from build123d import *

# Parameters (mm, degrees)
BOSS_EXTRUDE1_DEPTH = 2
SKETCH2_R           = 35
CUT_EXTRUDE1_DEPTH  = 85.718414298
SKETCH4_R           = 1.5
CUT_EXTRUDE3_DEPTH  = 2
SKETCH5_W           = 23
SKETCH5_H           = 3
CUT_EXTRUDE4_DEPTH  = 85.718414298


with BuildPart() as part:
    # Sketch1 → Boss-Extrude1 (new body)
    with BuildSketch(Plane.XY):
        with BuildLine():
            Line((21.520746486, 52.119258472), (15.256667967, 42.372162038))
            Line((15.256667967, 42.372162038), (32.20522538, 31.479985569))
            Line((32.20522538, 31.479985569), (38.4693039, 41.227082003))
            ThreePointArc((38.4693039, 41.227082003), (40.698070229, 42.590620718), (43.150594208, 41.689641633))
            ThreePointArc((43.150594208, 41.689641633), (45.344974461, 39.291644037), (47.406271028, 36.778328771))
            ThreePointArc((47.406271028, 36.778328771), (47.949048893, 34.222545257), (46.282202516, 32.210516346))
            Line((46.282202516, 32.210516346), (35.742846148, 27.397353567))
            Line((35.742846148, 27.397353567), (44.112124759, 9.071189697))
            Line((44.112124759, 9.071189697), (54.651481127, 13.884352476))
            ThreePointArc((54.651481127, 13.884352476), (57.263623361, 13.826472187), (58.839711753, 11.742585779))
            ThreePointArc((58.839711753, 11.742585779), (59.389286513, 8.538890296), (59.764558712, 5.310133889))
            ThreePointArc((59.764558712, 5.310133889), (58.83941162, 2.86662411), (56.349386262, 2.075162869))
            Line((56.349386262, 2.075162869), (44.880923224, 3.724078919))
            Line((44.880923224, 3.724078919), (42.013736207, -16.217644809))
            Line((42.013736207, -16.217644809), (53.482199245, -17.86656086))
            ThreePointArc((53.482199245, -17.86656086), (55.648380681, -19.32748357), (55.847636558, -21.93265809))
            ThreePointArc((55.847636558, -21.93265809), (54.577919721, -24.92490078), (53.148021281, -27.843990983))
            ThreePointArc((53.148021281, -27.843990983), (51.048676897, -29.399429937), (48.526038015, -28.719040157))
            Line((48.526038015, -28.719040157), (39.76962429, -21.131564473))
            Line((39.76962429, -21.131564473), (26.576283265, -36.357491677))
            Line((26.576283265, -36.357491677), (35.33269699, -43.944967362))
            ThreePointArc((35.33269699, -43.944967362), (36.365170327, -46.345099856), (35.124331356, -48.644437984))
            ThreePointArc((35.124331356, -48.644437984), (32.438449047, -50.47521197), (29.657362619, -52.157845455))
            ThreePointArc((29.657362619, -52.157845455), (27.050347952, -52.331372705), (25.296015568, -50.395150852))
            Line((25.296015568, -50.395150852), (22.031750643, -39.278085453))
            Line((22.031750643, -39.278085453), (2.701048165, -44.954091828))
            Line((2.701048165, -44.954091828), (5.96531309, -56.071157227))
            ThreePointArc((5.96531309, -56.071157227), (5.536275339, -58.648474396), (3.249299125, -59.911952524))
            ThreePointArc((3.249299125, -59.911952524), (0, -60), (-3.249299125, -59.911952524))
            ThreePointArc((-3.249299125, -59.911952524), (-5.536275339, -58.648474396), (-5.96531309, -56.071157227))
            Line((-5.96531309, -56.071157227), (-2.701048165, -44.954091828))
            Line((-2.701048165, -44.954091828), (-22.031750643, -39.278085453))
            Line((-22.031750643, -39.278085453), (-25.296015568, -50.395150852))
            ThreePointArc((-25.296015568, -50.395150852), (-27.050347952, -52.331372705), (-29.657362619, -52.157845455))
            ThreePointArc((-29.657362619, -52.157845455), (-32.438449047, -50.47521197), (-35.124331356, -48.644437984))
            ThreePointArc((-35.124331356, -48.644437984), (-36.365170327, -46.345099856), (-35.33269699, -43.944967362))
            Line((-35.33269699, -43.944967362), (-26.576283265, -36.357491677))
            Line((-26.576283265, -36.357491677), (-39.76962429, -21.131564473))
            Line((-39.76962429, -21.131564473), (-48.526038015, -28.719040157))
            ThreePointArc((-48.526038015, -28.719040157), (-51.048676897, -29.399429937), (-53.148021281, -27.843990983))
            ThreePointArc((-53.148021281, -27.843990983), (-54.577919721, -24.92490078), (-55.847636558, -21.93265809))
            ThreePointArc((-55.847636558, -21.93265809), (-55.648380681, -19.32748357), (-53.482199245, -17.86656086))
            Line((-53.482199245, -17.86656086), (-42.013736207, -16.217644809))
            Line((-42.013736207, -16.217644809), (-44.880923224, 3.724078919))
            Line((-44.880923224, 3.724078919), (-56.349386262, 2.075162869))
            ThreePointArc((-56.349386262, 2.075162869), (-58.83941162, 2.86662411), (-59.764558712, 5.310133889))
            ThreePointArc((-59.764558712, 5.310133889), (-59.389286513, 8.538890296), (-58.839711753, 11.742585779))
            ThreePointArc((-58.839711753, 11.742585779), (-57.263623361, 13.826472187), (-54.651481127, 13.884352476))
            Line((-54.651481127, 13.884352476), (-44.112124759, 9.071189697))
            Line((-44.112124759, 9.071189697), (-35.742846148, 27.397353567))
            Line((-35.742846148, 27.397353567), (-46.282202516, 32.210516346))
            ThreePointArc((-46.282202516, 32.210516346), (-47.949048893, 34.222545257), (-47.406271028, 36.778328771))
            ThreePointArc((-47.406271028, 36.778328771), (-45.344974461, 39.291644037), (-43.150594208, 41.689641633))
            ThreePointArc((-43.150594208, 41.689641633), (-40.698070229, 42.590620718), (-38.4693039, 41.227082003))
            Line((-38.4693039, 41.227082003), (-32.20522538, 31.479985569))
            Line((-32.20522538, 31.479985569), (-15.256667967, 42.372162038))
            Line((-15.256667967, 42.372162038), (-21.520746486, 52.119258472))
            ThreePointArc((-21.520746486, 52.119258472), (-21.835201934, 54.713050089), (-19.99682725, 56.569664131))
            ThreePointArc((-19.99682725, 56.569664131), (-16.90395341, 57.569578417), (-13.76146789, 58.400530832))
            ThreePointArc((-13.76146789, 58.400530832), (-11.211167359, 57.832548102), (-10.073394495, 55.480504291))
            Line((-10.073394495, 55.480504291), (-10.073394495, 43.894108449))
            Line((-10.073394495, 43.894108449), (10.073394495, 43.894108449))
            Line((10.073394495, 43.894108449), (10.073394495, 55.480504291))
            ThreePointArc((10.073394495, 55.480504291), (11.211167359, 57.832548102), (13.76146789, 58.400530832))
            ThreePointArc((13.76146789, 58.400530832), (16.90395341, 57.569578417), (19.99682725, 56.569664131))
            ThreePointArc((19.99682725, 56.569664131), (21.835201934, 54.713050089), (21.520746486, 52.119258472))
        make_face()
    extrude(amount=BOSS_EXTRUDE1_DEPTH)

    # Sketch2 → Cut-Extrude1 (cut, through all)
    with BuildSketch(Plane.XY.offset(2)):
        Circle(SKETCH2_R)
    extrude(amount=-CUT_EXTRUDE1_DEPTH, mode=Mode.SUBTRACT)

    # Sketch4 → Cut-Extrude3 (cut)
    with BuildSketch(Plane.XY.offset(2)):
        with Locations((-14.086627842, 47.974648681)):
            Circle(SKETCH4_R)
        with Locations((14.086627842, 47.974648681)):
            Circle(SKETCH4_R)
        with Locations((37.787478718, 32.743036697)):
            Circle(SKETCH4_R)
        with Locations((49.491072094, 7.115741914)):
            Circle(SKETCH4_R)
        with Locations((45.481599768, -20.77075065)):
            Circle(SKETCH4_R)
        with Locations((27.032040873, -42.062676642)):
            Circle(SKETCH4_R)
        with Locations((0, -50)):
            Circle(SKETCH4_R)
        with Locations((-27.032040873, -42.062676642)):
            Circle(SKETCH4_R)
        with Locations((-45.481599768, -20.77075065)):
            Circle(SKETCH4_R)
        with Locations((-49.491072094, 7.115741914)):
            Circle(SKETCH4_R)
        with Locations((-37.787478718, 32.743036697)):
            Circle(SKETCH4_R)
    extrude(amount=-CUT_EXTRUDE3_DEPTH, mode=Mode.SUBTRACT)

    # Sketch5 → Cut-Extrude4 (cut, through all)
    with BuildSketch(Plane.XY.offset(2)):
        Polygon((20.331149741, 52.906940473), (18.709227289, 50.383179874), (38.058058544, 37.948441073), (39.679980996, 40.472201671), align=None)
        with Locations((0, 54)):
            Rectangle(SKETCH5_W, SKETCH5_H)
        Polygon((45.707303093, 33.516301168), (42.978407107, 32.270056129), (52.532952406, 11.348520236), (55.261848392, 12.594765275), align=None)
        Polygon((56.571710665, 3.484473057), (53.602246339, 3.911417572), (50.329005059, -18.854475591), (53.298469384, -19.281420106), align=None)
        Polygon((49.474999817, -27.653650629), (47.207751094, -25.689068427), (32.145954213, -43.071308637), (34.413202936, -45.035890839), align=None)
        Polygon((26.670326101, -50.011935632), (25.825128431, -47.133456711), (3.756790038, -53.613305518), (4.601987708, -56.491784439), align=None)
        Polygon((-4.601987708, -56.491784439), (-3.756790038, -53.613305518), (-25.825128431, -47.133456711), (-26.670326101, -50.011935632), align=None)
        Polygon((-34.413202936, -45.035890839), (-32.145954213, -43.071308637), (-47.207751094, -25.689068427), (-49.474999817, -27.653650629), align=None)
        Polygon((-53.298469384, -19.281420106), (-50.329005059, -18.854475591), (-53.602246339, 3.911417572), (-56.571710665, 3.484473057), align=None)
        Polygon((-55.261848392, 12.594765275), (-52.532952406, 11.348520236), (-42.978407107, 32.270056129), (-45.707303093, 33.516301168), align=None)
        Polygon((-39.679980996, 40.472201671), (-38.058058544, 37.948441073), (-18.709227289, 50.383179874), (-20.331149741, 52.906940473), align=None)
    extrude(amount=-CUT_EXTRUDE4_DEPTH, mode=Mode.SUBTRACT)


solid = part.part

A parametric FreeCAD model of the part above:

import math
import FreeCAD as App
import Part
import Sketcher

doc = App.newDocument("Part")
params = doc.addObject("Spreadsheet::Sheet", "Params")
for row, (alias, value) in enumerate([
    ("sketch1_radius", "3 mm"),
    ("sketch1_radius2", "60 mm"),
    ("pad1_length", "2 mm"),
    ("sketch2_diameter", "70 mm"),
    ("sketch3_diameter", "3 mm"),
    ("pocket2_length", "2 mm"),
    ("sketch4_width", "23 mm"),
    ("sketch4_height", "3 mm"),
    ("sketch4_length", "3 mm"),
    ("sketch4_length2", "23 mm"),
], start=1):
    params.set(f"A{row}", alias)
    params.set(f"B{row}", "=" + value)
    params.setAlias(f"B{row}", alias)

body = doc.addObject("PartDesign::Body", "Body")

# Sketch on XY plane
sketch1 = doc.addObject("Sketcher::SketchObject", "Sketch")
body.addObject(sketch1)
sketch1.AttachmentSupport = (doc.XY_Plane, [""])
sketch1.MapMode = "FlatFace"
sketch1.addGeometry([
    Part.LineSegment(App.Vector(15.3, 42.4, 0), App.Vector(21.5, 52.1, 0)),  # 0
    Part.ArcOfCircle(Part.Circle(App.Vector(19, 53.7, 0), App.Vector(0, 0, 1), 3), math.radians(-33), math.radians(71)),  # 1
    Part.ArcOfCircle(Part.Circle(App.Vector(0, 0, 0), App.Vector(0, 0, 1), 60), math.radians(70.53), math.radians(76.74)),  # 2
    Part.ArcOfCircle(Part.Circle(App.Vector(13.1, 55.5, 0), App.Vector(0, 0, 1), 3), math.radians(77), math.radians(180)),  # 3
    Part.LineSegment(App.Vector(10.1, 55.5, 0), App.Vector(10.1, 43.9, 0)),  # 4
    Part.LineSegment(App.Vector(10.1, 43.9, 0), App.Vector(-10.1, 43.9, 0)),  # 5
    Part.LineSegment(App.Vector(-10.1, 43.9, 0), App.Vector(-10.1, 55.5, 0)),  # 6
    Part.ArcOfCircle(Part.Circle(App.Vector(-13.1, 55.5, 0), App.Vector(0, 0, 1), 3), math.radians(0), math.radians(103)),  # 7
    Part.ArcOfCircle(Part.Circle(App.Vector(0, 0, 0), App.Vector(0, 0, 1), 60), math.radians(103.26), math.radians(109.47)),  # 8
    Part.ArcOfCircle(Part.Circle(App.Vector(-19, 53.7, 0), App.Vector(0, 0, 1), 3), math.radians(109), math.radians(213)),  # 9
    Part.LineSegment(App.Vector(-21.5, 52.1, 0), App.Vector(-15.3, 42.4, 0)),  # 10
    Part.LineSegment(App.Vector(-15.3, 42.4, 0), App.Vector(-32.2, 31.5, 0)),  # 11
    Part.LineSegment(App.Vector(-32.2, 31.5, 0), App.Vector(-38.5, 41.2, 0)),  # 12
    Part.ArcOfCircle(Part.Circle(App.Vector(-41, 39.6, 0), App.Vector(0, 0, 1), 3), math.radians(33), math.radians(136)),  # 13
    Part.ArcOfCircle(Part.Circle(App.Vector(0, 0, 0), App.Vector(0, 0, 1), 60), math.radians(135.99), math.radians(142.2)),  # 14
    Part.ArcOfCircle(Part.Circle(App.Vector(-45, 34.9, 0), App.Vector(0, 0, 1), 3), math.radians(142), math.radians(245)),  # 15
    Part.LineSegment(App.Vector(-46.3, 32.2, 0), App.Vector(-35.7, 27.4, 0)),  # 16
    Part.LineSegment(App.Vector(-35.7, 27.4, 0), App.Vector(-44.1, 9.1, 0)),  # 17
    Part.LineSegment(App.Vector(-44.1, 9.1, 0), App.Vector(-54.7, 13.9, 0)),  # 18
    Part.ArcOfCircle(Part.Circle(App.Vector(-55.9, 11.2, 0), App.Vector(0, 0, 1), 3), math.radians(65), math.radians(169)),  # 19
    Part.ArcOfCircle(Part.Circle(App.Vector(0, 0, 0), App.Vector(0, 0, 1), 60), math.radians(168.71), math.radians(174.92)),  # 20
    Part.ArcOfCircle(Part.Circle(App.Vector(-56.8, 5, 0), App.Vector(0, 0, 1), 3), math.radians(175), math.radians(278)),  # 21
    Part.LineSegment(App.Vector(-56.3, 2.1, 0), App.Vector(-44.9, 3.7, 0)),  # 22
    Part.LineSegment(App.Vector(-44.9, 3.7, 0), App.Vector(-42, -16.2, 0)),  # 23
    Part.LineSegment(App.Vector(-42, -16.2, 0), App.Vector(-53.5, -17.9, 0)),  # 24
    Part.ArcOfCircle(Part.Circle(App.Vector(-53.1, -20.8, 0), App.Vector(0, 0, 1), 3), math.radians(98), math.radians(201)),  # 25
    Part.ArcOfCircle(Part.Circle(App.Vector(0, 0, 0), App.Vector(0, 0, 1), 60), math.radians(-158.56), math.radians(-152.35)),  # 26
    Part.ArcOfCircle(Part.Circle(App.Vector(-50.5, -26.5, 0), App.Vector(0, 0, 1), 3), math.radians(-152), math.radians(-49)),  # 27
    Part.LineSegment(App.Vector(-48.5, -28.7, 0), App.Vector(-39.8, -21.1, 0)),  # 28
    Part.LineSegment(App.Vector(-39.8, -21.1, 0), App.Vector(-26.6, -36.4, 0)),  # 29
    Part.LineSegment(App.Vector(-26.6, -36.4, 0), App.Vector(-35.3, -43.9, 0)),  # 30
    Part.ArcOfCircle(Part.Circle(App.Vector(-33.4, -46.2, 0), App.Vector(0, 0, 1), 3), math.radians(131), math.radians(234)),  # 31
    Part.ArcOfCircle(Part.Circle(App.Vector(0, 0, 0), App.Vector(0, 0, 1), 60), math.radians(-125.83), math.radians(-119.62)),  # 32
    Part.ArcOfCircle(Part.Circle(App.Vector(-28.2, -49.5, 0), App.Vector(0, 0, 1), 3), math.radians(-120), math.radians(-16)),  # 33
    Part.LineSegment(App.Vector(-25.3, -50.4, 0), App.Vector(-22, -39.3, 0)),  # 34
    Part.LineSegment(App.Vector(-22, -39.3, 0), App.Vector(-2.7, -45, 0)),  # 35
    Part.LineSegment(App.Vector(-2.7, -45, 0), App.Vector(-6, -56.1, 0)),  # 36
    Part.ArcOfCircle(Part.Circle(App.Vector(-3.1, -56.9, 0), App.Vector(0, 0, 1), 3), math.radians(164), math.radians(267)),  # 37
    Part.ArcOfCircle(Part.Circle(App.Vector(0, 0, 0), App.Vector(0, 0, 1), 60), math.radians(-93.1), math.radians(-86.9)),  # 38
    Part.ArcOfCircle(Part.Circle(App.Vector(3.1, -56.9, 0), App.Vector(0, 0, 1), 3), math.radians(-87), math.radians(16)),  # 39
    Part.LineSegment(App.Vector(6, -56.1, 0), App.Vector(2.7, -45, 0)),  # 40
    Part.LineSegment(App.Vector(2.7, -45, 0), App.Vector(22, -39.3, 0)),  # 41
    Part.LineSegment(App.Vector(22, -39.3, 0), App.Vector(25.3, -50.4, 0)),  # 42
    Part.ArcOfCircle(Part.Circle(App.Vector(28.2, -49.5, 0), App.Vector(0, 0, 1), 3), math.radians(-164), math.radians(-60)),  # 43
    Part.ArcOfCircle(Part.Circle(App.Vector(0, 0, 0), App.Vector(0, 0, 1), 60), math.radians(-60.38), math.radians(-54.17)),  # 44
    Part.ArcOfCircle(Part.Circle(App.Vector(33.4, -46.2, 0), App.Vector(0, 0, 1), 3), math.radians(-54), math.radians(49)),  # 45
    Part.LineSegment(App.Vector(35.3, -43.9, 0), App.Vector(26.6, -36.4, 0)),  # 46
    Part.LineSegment(App.Vector(26.6, -36.4, 0), App.Vector(39.8, -21.1, 0)),  # 47
    Part.LineSegment(App.Vector(39.8, -21.1, 0), App.Vector(48.5, -28.7, 0)),  # 48
    Part.ArcOfCircle(Part.Circle(App.Vector(50.5, -26.5, 0), App.Vector(0, 0, 1), 3), math.radians(-131), math.radians(-28)),  # 49
    Part.ArcOfCircle(Part.Circle(App.Vector(0, 0, 0), App.Vector(0, 0, 1), 60), math.radians(-27.65), math.radians(-21.44)),  # 50
    Part.ArcOfCircle(Part.Circle(App.Vector(53.1, -20.8, 0), App.Vector(0, 0, 1), 3), math.radians(-21), math.radians(82)),  # 51
    Part.LineSegment(App.Vector(53.5, -17.9, 0), App.Vector(42, -16.2, 0)),  # 52
    Part.LineSegment(App.Vector(42, -16.2, 0), App.Vector(44.9, 3.7, 0)),  # 53
    Part.LineSegment(App.Vector(44.9, 3.7, 0), App.Vector(56.3, 2.1, 0)),  # 54
    Part.ArcOfCircle(Part.Circle(App.Vector(56.8, 5, 0), App.Vector(0, 0, 1), 3), math.radians(-98), math.radians(5)),  # 55
    Part.ArcOfCircle(Part.Circle(App.Vector(0, 0, 0), App.Vector(0, 0, 1), 60), math.radians(5.08), math.radians(11.29)),  # 56
    Part.ArcOfCircle(Part.Circle(App.Vector(55.9, 11.2, 0), App.Vector(0, 0, 1), 3), math.radians(11), math.radians(115)),  # 57
    Part.LineSegment(App.Vector(54.7, 13.9, 0), App.Vector(44.1, 9.1, 0)),  # 58
    Part.LineSegment(App.Vector(44.1, 9.1, 0), App.Vector(35.7, 27.4, 0)),  # 59
    Part.LineSegment(App.Vector(35.7, 27.4, 0), App.Vector(46.3, 32.2, 0)),  # 60
    Part.ArcOfCircle(Part.Circle(App.Vector(45, 34.9, 0), App.Vector(0, 0, 1), 3), math.radians(-65), math.radians(38)),  # 61
    Part.ArcOfCircle(Part.Circle(App.Vector(0, 0, 0), App.Vector(0, 0, 1), 60), math.radians(37.8), math.radians(44.01)),  # 62
    Part.ArcOfCircle(Part.Circle(App.Vector(41, 39.6, 0), App.Vector(0, 0, 1), 3), math.radians(44), math.radians(147)),  # 63
    Part.LineSegment(App.Vector(38.5, 41.2, 0), App.Vector(32.2, 31.5, 0)),  # 64
    Part.LineSegment(App.Vector(32.2, 31.5, 0), App.Vector(15.3, 42.4, 0)),  # 65
], False)
sketch1.addConstraint([
    Sketcher.Constraint("Tangent", 0, 2, 1, 1),
    Sketcher.Constraint("Tangent", 1, 2, 2, 1),
    Sketcher.Constraint("Tangent", 2, 2, 3, 1),
    Sketcher.Constraint("Tangent", 3, 2, 4, 1),
    Sketcher.Constraint("Coincident", 4, 2, 5, 1),
    Sketcher.Constraint("Coincident", 5, 2, 6, 1),
    Sketcher.Constraint("Tangent", 6, 2, 7, 1),
    Sketcher.Constraint("Tangent", 7, 2, 8, 1),
    Sketcher.Constraint("Tangent", 8, 2, 9, 1),
    Sketcher.Constraint("Tangent", 9, 2, 10, 1),
    Sketcher.Constraint("Coincident", 10, 2, 11, 1),
    Sketcher.Constraint("Coincident", 11, 2, 12, 1),
    Sketcher.Constraint("Tangent", 12, 2, 13, 1),
    Sketcher.Constraint("Tangent", 13, 2, 14, 1),
    Sketcher.Constraint("Tangent", 14, 2, 15, 1),
    Sketcher.Constraint("Tangent", 15, 2, 16, 1),
    Sketcher.Constraint("Coincident", 16, 2, 17, 1),
    Sketcher.Constraint("Coincident", 17, 2, 18, 1),
    Sketcher.Constraint("Tangent", 18, 2, 19, 1),
    Sketcher.Constraint("Tangent", 19, 2, 20, 1),
    Sketcher.Constraint("Tangent", 20, 2, 21, 1),
    Sketcher.Constraint("Tangent", 21, 2, 22, 1),
    Sketcher.Constraint("Coincident", 22, 2, 23, 1),
    Sketcher.Constraint("Coincident", 23, 2, 24, 1),
    Sketcher.Constraint("Tangent", 24, 2, 25, 1),
    Sketcher.Constraint("Tangent", 25, 2, 26, 1),
    Sketcher.Constraint("Tangent", 26, 2, 27, 1),
    Sketcher.Constraint("Tangent", 27, 2, 28, 1),
    Sketcher.Constraint("Coincident", 28, 2, 29, 1),
    Sketcher.Constraint("Coincident", 29, 2, 30, 1),
    Sketcher.Constraint("Tangent", 30, 2, 31, 1),
    Sketcher.Constraint("Tangent", 31, 2, 32, 1),
    Sketcher.Constraint("Tangent", 32, 2, 33, 1),
    Sketcher.Constraint("Tangent", 33, 2, 34, 1),
    Sketcher.Constraint("Coincident", 34, 2, 35, 1),
    Sketcher.Constraint("Coincident", 35, 2, 36, 1),
    Sketcher.Constraint("Tangent", 36, 2, 37, 1),
    Sketcher.Constraint("Tangent", 37, 2, 38, 1),
    Sketcher.Constraint("Tangent", 38, 2, 39, 1),
    Sketcher.Constraint("Tangent", 39, 2, 40, 1),
    Sketcher.Constraint("Coincident", 40, 2, 41, 1),
    Sketcher.Constraint("Coincident", 41, 2, 42, 1),
    Sketcher.Constraint("Tangent", 42, 2, 43, 1),
    Sketcher.Constraint("Tangent", 43, 2, 44, 1),
    Sketcher.Constraint("Tangent", 44, 2, 45, 1),
    Sketcher.Constraint("Tangent", 45, 2, 46, 1),
    Sketcher.Constraint("Coincident", 46, 2, 47, 1),
    Sketcher.Constraint("Coincident", 47, 2, 48, 1),
    Sketcher.Constraint("Tangent", 48, 2, 49, 1),
    Sketcher.Constraint("Tangent", 49, 2, 50, 1),
    Sketcher.Constraint("Tangent", 50, 2, 51, 1),
    Sketcher.Constraint("Tangent", 51, 2, 52, 1),
    Sketcher.Constraint("Coincident", 52, 2, 53, 1),
    Sketcher.Constraint("Coincident", 53, 2, 54, 1),
    Sketcher.Constraint("Tangent", 54, 2, 55, 1),
    Sketcher.Constraint("Tangent", 55, 2, 56, 1),
    Sketcher.Constraint("Tangent", 56, 2, 57, 1),
    Sketcher.Constraint("Tangent", 57, 2, 58, 1),
    Sketcher.Constraint("Coincident", 58, 2, 59, 1),
    Sketcher.Constraint("Coincident", 59, 2, 60, 1),
    Sketcher.Constraint("Tangent", 60, 2, 61, 1),
    Sketcher.Constraint("Tangent", 61, 2, 62, 1),
    Sketcher.Constraint("Tangent", 62, 2, 63, 1),
    Sketcher.Constraint("Tangent", 63, 2, 64, 1),
    Sketcher.Constraint("Coincident", 64, 2, 65, 1),
    Sketcher.Constraint("Coincident", 65, 2, 0, 1),
    Sketcher.Constraint("Vertical", 4),
    Sketcher.Constraint("Horizontal", 5),
    Sketcher.Constraint("Vertical", 6),
    Sketcher.Constraint("Coincident", 2, 3, -1, 1),
    Sketcher.Constraint("Coincident", 8, 3, -1, 1),
    Sketcher.Constraint("Coincident", 14, 3, -1, 1),
    Sketcher.Constraint("Coincident", 20, 3, -1, 1),
    Sketcher.Constraint("Coincident", 26, 3, -1, 1),
    Sketcher.Constraint("Coincident", 32, 3, -1, 1),
    Sketcher.Constraint("Coincident", 38, 3, -1, 1),
    Sketcher.Constraint("Coincident", 44, 3, -1, 1),
    Sketcher.Constraint("Coincident", 50, 3, -1, 1),
    Sketcher.Constraint("Coincident", 56, 3, -1, 1),
    Sketcher.Constraint("Coincident", 62, 3, -1, 1),
    Sketcher.Constraint("Equal", 1, 3),
    Sketcher.Constraint("Equal", 3, 7),
    Sketcher.Constraint("Equal", 2, 8),
    Sketcher.Constraint("Equal", 7, 9),
    Sketcher.Constraint("Equal", 9, 13),
    Sketcher.Constraint("Equal", 8, 14),
    Sketcher.Constraint("Equal", 13, 15),
    Sketcher.Constraint("Equal", 15, 19),
    Sketcher.Constraint("Equal", 14, 20),
    Sketcher.Constraint("Equal", 19, 21),
    Sketcher.Constraint("Equal", 21, 25),
    Sketcher.Constraint("Equal", 20, 26),
    Sketcher.Constraint("Equal", 25, 27),
    Sketcher.Constraint("Equal", 27, 31),
    Sketcher.Constraint("Equal", 26, 32),
    Sketcher.Constraint("Equal", 31, 33),
    Sketcher.Constraint("Equal", 33, 37),
    Sketcher.Constraint("Equal", 32, 38),
    Sketcher.Constraint("Equal", 37, 39),
    Sketcher.Constraint("Equal", 39, 43),
    Sketcher.Constraint("Equal", 38, 44),
    Sketcher.Constraint("Equal", 43, 45),
    Sketcher.Constraint("Equal", 45, 49),
    Sketcher.Constraint("Equal", 44, 50),
    Sketcher.Constraint("Equal", 49, 51),
    Sketcher.Constraint("Equal", 51, 55),
    Sketcher.Constraint("Equal", 50, 56),
    Sketcher.Constraint("Equal", 55, 57),
    Sketcher.Constraint("Equal", 57, 61),
    Sketcher.Constraint("Equal", 56, 62),
    Sketcher.Constraint("Equal", 61, 63),
    Sketcher.Constraint("Symmetric", 0, 2, 9, 2, -2),
    Sketcher.Constraint("Symmetric", 36, 2, 39, 2, -2),
    Sketcher.Constraint("Symmetric", 34, 2, 41, 2, -2),
    Sketcher.Constraint("Symmetric", 30, 2, 45, 2, -2),
    Sketcher.Constraint("Symmetric", 28, 2, 47, 2, -2),
    Sketcher.Constraint("Symmetric", 24, 2, 51, 2, -2),
    Sketcher.Constraint("Symmetric", 22, 2, 53, 2, -2),
    Sketcher.Constraint("Symmetric", 18, 2, 57, 2, -2),
    Sketcher.Constraint("Symmetric", 16, 2, 59, 2, -2),
    Sketcher.Constraint("Symmetric", 12, 2, 63, 2, -2),
    Sketcher.Constraint("Perpendicular", 10, 11),
    Sketcher.Constraint("Perpendicular", 11, 12),
    Sketcher.Constraint("Perpendicular", 16, 17),
    Sketcher.Constraint("Perpendicular", 17, 18),
    Sketcher.Constraint("Perpendicular", 22, 23),
    Sketcher.Constraint("Perpendicular", 23, 24),
    Sketcher.Constraint("Perpendicular", 28, 29),
    Sketcher.Constraint("Perpendicular", 29, 30),
    Sketcher.Constraint("Perpendicular", 34, 35),
    Sketcher.Constraint("Perpendicular", 35, 36),
    Sketcher.Constraint("Perpendicular", 40, 41),
    Sketcher.Constraint("Perpendicular", 41, 42),
    Sketcher.Constraint("Perpendicular", 46, 47),
    Sketcher.Constraint("Perpendicular", 47, 48),
    Sketcher.Constraint("Perpendicular", 52, 53),
    Sketcher.Constraint("Perpendicular", 53, 54),
    Sketcher.Constraint("Perpendicular", 58, 59),
    Sketcher.Constraint("Perpendicular", 59, 60),
    Sketcher.Constraint("Perpendicular", 64, 65),
    Sketcher.Constraint("Horizontal", 3, 3, 7, 3),
    Sketcher.Constraint("Horizontal", 11, 2, 64, 2),
    Sketcher.Constraint("Equal", 10, 12),
    Sketcher.Constraint("Equal", 12, 16),
    Sketcher.Constraint("Equal", 11, 17),
    Sketcher.Constraint("Equal", 16, 18),
    Sketcher.Constraint("Equal", 18, 22),
    Sketcher.Constraint("Equal", 17, 23),
    Sketcher.Constraint("Equal", 22, 24),
    Sketcher.Constraint("Equal", 24, 28),
    Sketcher.Constraint("Equal", 23, 29),
    Sketcher.Constraint("Equal", 28, 30),
    Sketcher.Constraint("Equal", 30, 34),
    Sketcher.Constraint("Equal", 29, 35),
    Sketcher.Constraint("Equal", 34, 36),
    Sketcher.Constraint("Radius", 1, 3.0),
    Sketcher.Constraint("Radius", 2, 60.0),
    Sketcher.Constraint("DistanceX", 5, 2, 5, 1, 20.146789),
    Sketcher.Constraint("DistanceX", 24, 2, -1, 1, 53.482199),
    Sketcher.Constraint("DistanceX", 37, 2, -1, 1, 3.249299),
    Sketcher.Constraint("Distance", 11, 20.146789),
    Sketcher.Constraint("DistanceY", 4, 2, 4, 1, 11.586396),
    Sketcher.Constraint("DistanceY", -1, 1, 1, 3, 53.741181),
    Sketcher.Constraint("DistanceX", 27, 3, -1, 1, 50.49062),
    Sketcher.Constraint("DistanceX", 14, 2, -1, 1, 47.406271),
    Sketcher.Constraint("DistanceY", -1, 1, 17, 2, 9.07119),
])
sketch1.setExpression("Constraints[155]", "Params.sketch1_radius")
sketch1.setExpression("Constraints[156]", "Params.sketch1_radius2")
pad1 = doc.addObject("PartDesign::Pad", "Pad")
body.addObject(pad1)
pad1.Profile = sketch1
pad1.setExpression("Length", "Params.pad1_length")

# Sketch on XY plane
sketch2 = doc.addObject("Sketcher::SketchObject", "Sketch001")
body.addObject(sketch2)
sketch2.AttachmentSupport = (doc.XY_Plane, [""])
sketch2.MapMode = "FlatFace"
sketch2.AttachmentOffset = App.Placement(App.Vector(0, 0, 2), App.Rotation())
sketch2.addGeometry(Part.Circle(App.Vector(0, 0, 0), App.Vector(0, 0, 1), 35), False)
sketch2.addConstraint([
    Sketcher.Constraint("Coincident", 0, 3, -1, 1),
    Sketcher.Constraint("Diameter", 0, 70.0),
])
sketch2.setExpression("Constraints[1]", "Params.sketch2_diameter")
pocket1 = doc.addObject("PartDesign::Pocket", "Pocket")
body.addObject(pocket1)
pocket1.Profile = sketch2
pocket1.Type = "ThroughAll"

# Sketch on XY plane
sketch3 = doc.addObject("Sketcher::SketchObject", "Sketch002")
body.addObject(sketch3)
sketch3.AttachmentSupport = (doc.XY_Plane, [""])
sketch3.MapMode = "FlatFace"
sketch3.AttachmentOffset = App.Placement(App.Vector(0, 0, 2), App.Rotation())
sketch3.addGeometry([
    Part.Circle(App.Vector(-14.1, 48, 0), App.Vector(0, 0, 1), 1.5),  # 0
    Part.Circle(App.Vector(14.1, 48, 0), App.Vector(0, 0, 1), 1.5),  # 1
    Part.Circle(App.Vector(37.8, 32.7, 0), App.Vector(0, 0, 1), 1.5),  # 2
    Part.Circle(App.Vector(49.5, 7.1, 0), App.Vector(0, 0, 1), 1.5),  # 3
    Part.Circle(App.Vector(45.5, -20.8, 0), App.Vector(0, 0, 1), 1.5),  # 4
    Part.Circle(App.Vector(27, -42.1, 0), App.Vector(0, 0, 1), 1.5),  # 5
    Part.Circle(App.Vector(0, -50, 0), App.Vector(0, 0, 1), 1.5),  # 6
    Part.Circle(App.Vector(-27, -42.1, 0), App.Vector(0, 0, 1), 1.5),  # 7
    Part.Circle(App.Vector(-45.5, -20.8, 0), App.Vector(0, 0, 1), 1.5),  # 8
    Part.Circle(App.Vector(-49.5, 7.1, 0), App.Vector(0, 0, 1), 1.5),  # 9
    Part.Circle(App.Vector(-37.8, 32.7, 0), App.Vector(0, 0, 1), 1.5),  # 10
], False)
sketch3.addConstraint([
    Sketcher.Constraint("Equal", 0, 1),
    Sketcher.Constraint("Equal", 1, 2),
    Sketcher.Constraint("Equal", 2, 3),
    Sketcher.Constraint("Equal", 3, 4),
    Sketcher.Constraint("Equal", 4, 5),
    Sketcher.Constraint("Equal", 5, 6),
    Sketcher.Constraint("Equal", 6, 7),
    Sketcher.Constraint("Equal", 7, 8),
    Sketcher.Constraint("Equal", 8, 9),
    Sketcher.Constraint("Equal", 9, 10),
    Sketcher.Constraint("Symmetric", 0, 3, 1, 3, -2),
    Sketcher.Constraint("Symmetric", 5, 3, 7, 3, -2),
    Sketcher.Constraint("Symmetric", 4, 3, 8, 3, -2),
    Sketcher.Constraint("Symmetric", 3, 3, 9, 3, -2),
    Sketcher.Constraint("Symmetric", 2, 3, 10, 3, -2),
    Sketcher.Constraint("PointOnObject", 6, 3, -2),
    Sketcher.Constraint("Diameter", 0, 3.0),
    Sketcher.Constraint("DistanceY", 6, 3, -1, 1, 50.0),
    Sketcher.Constraint("DistanceX", -1, 1, 4, 3, 45.4816),
    Sketcher.Constraint("DistanceX", 0, 3, 3, 3, 63.5777),
    Sketcher.Constraint("DistanceY", 4, 3, 1, 3, 68.745399),
    Sketcher.Constraint("DistanceY", -1, 1, 0, 3, 47.974649),
    Sketcher.Constraint("DistanceX", -1, 1, 2, 3, 37.787479),
    Sketcher.Constraint("DistanceY", -1, 1, 3, 3, 7.115742),
    Sketcher.Constraint("DistanceX", -1, 1, 5, 3, 27.032041),
    Sketcher.Constraint("DistanceX", 1, 3, 2, 3, 23.700851),
    Sketcher.Constraint("DistanceY", 2, 3, 1, 3, 15.231612),
    Sketcher.Constraint("DistanceY", 5, 3, 3, 3, 49.178419),
])
sketch3.setExpression("Constraints[16]", "Params.sketch3_diameter")
pocket2 = doc.addObject("PartDesign::Pocket", "Pocket001")
body.addObject(pocket2)
pocket2.Profile = sketch3
pocket2.setExpression("Length", "Params.pocket2_length")

# Sketch on XY plane
sketch4 = doc.addObject("Sketcher::SketchObject", "Sketch003")
body.addObject(sketch4)
sketch4.AttachmentSupport = (doc.XY_Plane, [""])
sketch4.MapMode = "FlatFace"
sketch4.AttachmentOffset = App.Placement(App.Vector(0, 0, 2), App.Rotation())
sketch4.addGeometry([
    Part.LineSegment(App.Vector(20.3, 52.9, 0), App.Vector(18.7, 50.4, 0)),  # 0
    Part.LineSegment(App.Vector(18.7, 50.4, 0), App.Vector(38.1, 37.9, 0)),  # 1
    Part.LineSegment(App.Vector(38.1, 37.9, 0), App.Vector(39.7, 40.5, 0)),  # 2
    Part.LineSegment(App.Vector(39.7, 40.5, 0), App.Vector(20.3, 52.9, 0)),  # 3
    Part.LineSegment(App.Vector(-11.5, 55.5, 0), App.Vector(-11.5, 52.5, 0)),  # 4
    Part.LineSegment(App.Vector(-11.5, 52.5, 0), App.Vector(11.5, 52.5, 0)),  # 5
    Part.LineSegment(App.Vector(11.5, 52.5, 0), App.Vector(11.5, 55.5, 0)),  # 6
    Part.LineSegment(App.Vector(11.5, 55.5, 0), App.Vector(-11.5, 55.5, 0)),  # 7
    Part.LineSegment(App.Vector(45.7, 33.5, 0), App.Vector(43, 32.3, 0)),  # 8
    Part.LineSegment(App.Vector(43, 32.3, 0), App.Vector(52.5, 11.3, 0)),  # 9
    Part.LineSegment(App.Vector(52.5, 11.3, 0), App.Vector(55.3, 12.6, 0)),  # 10
    Part.LineSegment(App.Vector(55.3, 12.6, 0), App.Vector(45.7, 33.5, 0)),  # 11
    Part.LineSegment(App.Vector(56.6, 3.5, 0), App.Vector(53.6, 3.9, 0)),  # 12
    Part.LineSegment(App.Vector(53.6, 3.9, 0), App.Vector(50.3, -18.9, 0)),  # 13
    Part.LineSegment(App.Vector(50.3, -18.9, 0), App.Vector(53.3, -19.3, 0)),  # 14
    Part.LineSegment(App.Vector(53.3, -19.3, 0), App.Vector(56.6, 3.5, 0)),  # 15
    Part.LineSegment(App.Vector(49.5, -27.7, 0), App.Vector(47.2, -25.7, 0)),  # 16
    Part.LineSegment(App.Vector(47.2, -25.7, 0), App.Vector(32.1, -43.1, 0)),  # 17
    Part.LineSegment(App.Vector(32.1, -43.1, 0), App.Vector(34.4, -45, 0)),  # 18
    Part.LineSegment(App.Vector(34.4, -45, 0), App.Vector(49.5, -27.7, 0)),  # 19
    Part.LineSegment(App.Vector(26.7, -50, 0), App.Vector(25.8, -47.1, 0)),  # 20
    Part.LineSegment(App.Vector(25.8, -47.1, 0), App.Vector(3.8, -53.6, 0)),  # 21
    Part.LineSegment(App.Vector(3.8, -53.6, 0), App.Vector(4.6, -56.5, 0)),  # 22
    Part.LineSegment(App.Vector(4.6, -56.5, 0), App.Vector(26.7, -50, 0)),  # 23
    Part.LineSegment(App.Vector(-4.6, -56.5, 0), App.Vector(-3.8, -53.6, 0)),  # 24
    Part.LineSegment(App.Vector(-3.8, -53.6, 0), App.Vector(-25.8, -47.1, 0)),  # 25
    Part.LineSegment(App.Vector(-25.8, -47.1, 0), App.Vector(-26.7, -50, 0)),  # 26
    Part.LineSegment(App.Vector(-26.7, -50, 0), App.Vector(-4.6, -56.5, 0)),  # 27
    Part.LineSegment(App.Vector(-34.4, -45, 0), App.Vector(-32.1, -43.1, 0)),  # 28
    Part.LineSegment(App.Vector(-32.1, -43.1, 0), App.Vector(-47.2, -25.7, 0)),  # 29
    Part.LineSegment(App.Vector(-47.2, -25.7, 0), App.Vector(-49.5, -27.7, 0)),  # 30
    Part.LineSegment(App.Vector(-49.5, -27.7, 0), App.Vector(-34.4, -45, 0)),  # 31
    Part.LineSegment(App.Vector(-53.3, -19.3, 0), App.Vector(-50.3, -18.9, 0)),  # 32
    Part.LineSegment(App.Vector(-50.3, -18.9, 0), App.Vector(-53.6, 3.9, 0)),  # 33
    Part.LineSegment(App.Vector(-53.6, 3.9, 0), App.Vector(-56.6, 3.5, 0)),  # 34
    Part.LineSegment(App.Vector(-56.6, 3.5, 0), App.Vector(-53.3, -19.3, 0)),  # 35
    Part.LineSegment(App.Vector(-55.3, 12.6, 0), App.Vector(-52.5, 11.3, 0)),  # 36
    Part.LineSegment(App.Vector(-52.5, 11.3, 0), App.Vector(-43, 32.3, 0)),  # 37
    Part.LineSegment(App.Vector(-43, 32.3, 0), App.Vector(-45.7, 33.5, 0)),  # 38
    Part.LineSegment(App.Vector(-45.7, 33.5, 0), App.Vector(-55.3, 12.6, 0)),  # 39
    Part.LineSegment(App.Vector(-39.7, 40.5, 0), App.Vector(-38.1, 37.9, 0)),  # 40
    Part.LineSegment(App.Vector(-38.1, 37.9, 0), App.Vector(-18.7, 50.4, 0)),  # 41
    Part.LineSegment(App.Vector(-18.7, 50.4, 0), App.Vector(-20.3, 52.9, 0)),  # 42
    Part.LineSegment(App.Vector(-20.3, 52.9, 0), App.Vector(-39.7, 40.5, 0)),  # 43
], False)
sketch4.addConstraint([
    Sketcher.Constraint("Coincident", 0, 2, 1, 1),
    Sketcher.Constraint("Coincident", 1, 2, 2, 1),
    Sketcher.Constraint("Coincident", 2, 2, 3, 1),
    Sketcher.Constraint("Coincident", 3, 2, 0, 1),
    Sketcher.Constraint("Coincident", 4, 2, 5, 1),
    Sketcher.Constraint("Coincident", 5, 2, 6, 1),
    Sketcher.Constraint("Coincident", 6, 2, 7, 1),
    Sketcher.Constraint("Coincident", 7, 2, 4, 1),
    Sketcher.Constraint("Coincident", 8, 2, 9, 1),
    Sketcher.Constraint("Coincident", 9, 2, 10, 1),
    Sketcher.Constraint("Coincident", 10, 2, 11, 1),
    Sketcher.Constraint("Coincident", 11, 2, 8, 1),
    Sketcher.Constraint("Coincident", 12, 2, 13, 1),
    Sketcher.Constraint("Coincident", 13, 2, 14, 1),
    Sketcher.Constraint("Coincident", 14, 2, 15, 1),
    Sketcher.Constraint("Coincident", 15, 2, 12, 1),
    Sketcher.Constraint("Coincident", 16, 2, 17, 1),
    Sketcher.Constraint("Coincident", 17, 2, 18, 1),
    Sketcher.Constraint("Coincident", 18, 2, 19, 1),
    Sketcher.Constraint("Coincident", 19, 2, 16, 1),
    Sketcher.Constraint("Coincident", 20, 2, 21, 1),
    Sketcher.Constraint("Coincident", 21, 2, 22, 1),
    Sketcher.Constraint("Coincident", 22, 2, 23, 1),
    Sketcher.Constraint("Coincident", 23, 2, 20, 1),
    Sketcher.Constraint("Coincident", 24, 2, 25, 1),
    Sketcher.Constraint("Coincident", 25, 2, 26, 1),
    Sketcher.Constraint("Coincident", 26, 2, 27, 1),
    Sketcher.Constraint("Coincident", 27, 2, 24, 1),
    Sketcher.Constraint("Coincident", 28, 2, 29, 1),
    Sketcher.Constraint("Coincident", 29, 2, 30, 1),
    Sketcher.Constraint("Coincident", 30, 2, 31, 1),
    Sketcher.Constraint("Coincident", 31, 2, 28, 1),
    Sketcher.Constraint("Coincident", 32, 2, 33, 1),
    Sketcher.Constraint("Coincident", 33, 2, 34, 1),
    Sketcher.Constraint("Coincident", 34, 2, 35, 1),
    Sketcher.Constraint("Coincident", 35, 2, 32, 1),
    Sketcher.Constraint("Coincident", 36, 2, 37, 1),
    Sketcher.Constraint("Coincident", 37, 2, 38, 1),
    Sketcher.Constraint("Coincident", 38, 2, 39, 1),
    Sketcher.Constraint("Coincident", 39, 2, 36, 1),
    Sketcher.Constraint("Coincident", 40, 2, 41, 1),
    Sketcher.Constraint("Coincident", 41, 2, 42, 1),
    Sketcher.Constraint("Coincident", 42, 2, 43, 1),
    Sketcher.Constraint("Coincident", 43, 2, 40, 1),
    Sketcher.Constraint("Vertical", 4),
    Sketcher.Constraint("Horizontal", 5),
    Sketcher.Constraint("Vertical", 6),
    Sketcher.Constraint("Horizontal", 7),
    Sketcher.Constraint("Symmetric", 21, 2, 24, 2, -2),
    Sketcher.Constraint("Symmetric", 20, 2, 25, 2, -2),
    Sketcher.Constraint("Symmetric", 23, 2, 26, 2, -2),
    Sketcher.Constraint("Symmetric", 22, 2, 27, 2, -2),
    Sketcher.Constraint("Symmetric", 17, 2, 28, 2, -2),
    Sketcher.Constraint("Symmetric", 16, 2, 29, 2, -2),
    Sketcher.Constraint("Symmetric", 19, 2, 30, 2, -2),
    Sketcher.Constraint("Symmetric", 18, 2, 31, 2, -2),
    Sketcher.Constraint("Symmetric", 13, 2, 32, 2, -2),
    Sketcher.Constraint("Symmetric", 12, 2, 33, 2, -2),
    Sketcher.Constraint("Symmetric", 15, 2, 34, 2, -2),
    Sketcher.Constraint("Symmetric", 14, 2, 35, 2, -2),
    Sketcher.Constraint("Symmetric", 9, 2, 36, 2, -2),
    Sketcher.Constraint("Symmetric", 8, 2, 37, 2, -2),
    Sketcher.Constraint("Symmetric", 11, 2, 38, 2, -2),
    Sketcher.Constraint("Symmetric", 10, 2, 39, 2, -2),
    Sketcher.Constraint("Symmetric", 1, 2, 40, 2, -2),
    Sketcher.Constraint("Symmetric", 0, 2, 41, 2, -2),
    Sketcher.Constraint("Symmetric", 3, 2, 42, 2, -2),
    Sketcher.Constraint("Symmetric", 2, 2, 43, 2, -2),
    Sketcher.Constraint("Perpendicular", 0, 1),
    Sketcher.Constraint("Perpendicular", 1, 2),
    Sketcher.Constraint("Perpendicular", 2, 3),
    Sketcher.Constraint("Perpendicular", 8, 9),
    Sketcher.Constraint("Perpendicular", 9, 10),
    Sketcher.Constraint("Perpendicular", 10, 11),
    Sketcher.Constraint("Perpendicular", 12, 13),
    Sketcher.Constraint("Perpendicular", 13, 14),
    Sketcher.Constraint("Perpendicular", 14, 15),
    Sketcher.Constraint("Perpendicular", 16, 17),
    Sketcher.Constraint("Perpendicular", 17, 18),
    Sketcher.Constraint("Perpendicular", 18, 19),
    Sketcher.Constraint("Perpendicular", 20, 21),
    Sketcher.Constraint("Perpendicular", 21, 22),
    Sketcher.Constraint("Perpendicular", 22, 23),
    Sketcher.Constraint("Equal", 2, 8),
    Sketcher.Constraint("Equal", 3, 9),
    Sketcher.Constraint("Equal", 10, 12),
    Sketcher.Constraint("Equal", 11, 13),
    Sketcher.Constraint("Equal", 14, 16),
    Sketcher.Constraint("Equal", 15, 17),
    Sketcher.Constraint("Equal", 18, 20),
    Sketcher.Constraint("Equal", 19, 21),
    Sketcher.Constraint("DistanceX", 5, 1, 5, 2, 23.0),
    Sketcher.Constraint("DistanceY", 4, 2, 4, 1, 3.0),
    Sketcher.Constraint("Distance", 0, 3.0),
    Sketcher.Constraint("Distance", 1, 23.0),
    Sketcher.Constraint("DistanceX", 4, 2, -1, 1, 11.5),
    Sketcher.Constraint("DistanceY", -1, 1, 4, 2, 52.5),
    Sketcher.Constraint("DistanceX", -1, 1, 19, 2, 49.475),
    Sketcher.Constraint("DistanceY", -1, 1, 2, 2, 40.472202),
    Sketcher.Constraint("DistanceY", -1, 1, 11, 2, 33.516301),
    Sketcher.Constraint("DistanceY", 1, 2, 3, 2, 14.958499),
    Sketcher.Constraint("DistanceX", 11, 2, 13, 2, 4.621702),
    Sketcher.Constraint("DistanceX", 16, 2, 9, 2, 5.325201),
    Sketcher.Constraint("DistanceX", -1, 1, 1, 2, 38.058059),
    Sketcher.Constraint("DistanceY", -1, 1, 9, 2, 11.34852),
    Sketcher.Constraint("DistanceX", -1, 1, 10, 2, 55.261848),
    Sketcher.Constraint("DistanceX", -1, 1, 14, 2, 53.298469),
    Sketcher.Constraint("DistanceY", 14, 2, -1, 1, 19.28142),
    Sketcher.Constraint("DistanceY", 16, 2, -1, 1, 25.689068),
    Sketcher.Constraint("DistanceX", -1, 1, 20, 2, 25.825128),
    Sketcher.Constraint("DistanceX", -1, 1, 21, 2, 3.75679),
    Sketcher.Constraint("DistanceY", 20, 2, 17, 2, 4.062148),
])
sketch4.setExpression("Constraints[91]", "Params.sketch4_width")
sketch4.setExpression("Constraints[92]", "Params.sketch4_height")
sketch4.setExpression("Constraints[93]", "Params.sketch4_length")
sketch4.setExpression("Constraints[94]", "Params.sketch4_length2")
pocket3 = doc.addObject("PartDesign::Pocket", "Pocket002")
body.addObject(pocket3)
pocket3.Profile = sketch4
pocket3.Type = "ThroughAll"

doc.recompute()
